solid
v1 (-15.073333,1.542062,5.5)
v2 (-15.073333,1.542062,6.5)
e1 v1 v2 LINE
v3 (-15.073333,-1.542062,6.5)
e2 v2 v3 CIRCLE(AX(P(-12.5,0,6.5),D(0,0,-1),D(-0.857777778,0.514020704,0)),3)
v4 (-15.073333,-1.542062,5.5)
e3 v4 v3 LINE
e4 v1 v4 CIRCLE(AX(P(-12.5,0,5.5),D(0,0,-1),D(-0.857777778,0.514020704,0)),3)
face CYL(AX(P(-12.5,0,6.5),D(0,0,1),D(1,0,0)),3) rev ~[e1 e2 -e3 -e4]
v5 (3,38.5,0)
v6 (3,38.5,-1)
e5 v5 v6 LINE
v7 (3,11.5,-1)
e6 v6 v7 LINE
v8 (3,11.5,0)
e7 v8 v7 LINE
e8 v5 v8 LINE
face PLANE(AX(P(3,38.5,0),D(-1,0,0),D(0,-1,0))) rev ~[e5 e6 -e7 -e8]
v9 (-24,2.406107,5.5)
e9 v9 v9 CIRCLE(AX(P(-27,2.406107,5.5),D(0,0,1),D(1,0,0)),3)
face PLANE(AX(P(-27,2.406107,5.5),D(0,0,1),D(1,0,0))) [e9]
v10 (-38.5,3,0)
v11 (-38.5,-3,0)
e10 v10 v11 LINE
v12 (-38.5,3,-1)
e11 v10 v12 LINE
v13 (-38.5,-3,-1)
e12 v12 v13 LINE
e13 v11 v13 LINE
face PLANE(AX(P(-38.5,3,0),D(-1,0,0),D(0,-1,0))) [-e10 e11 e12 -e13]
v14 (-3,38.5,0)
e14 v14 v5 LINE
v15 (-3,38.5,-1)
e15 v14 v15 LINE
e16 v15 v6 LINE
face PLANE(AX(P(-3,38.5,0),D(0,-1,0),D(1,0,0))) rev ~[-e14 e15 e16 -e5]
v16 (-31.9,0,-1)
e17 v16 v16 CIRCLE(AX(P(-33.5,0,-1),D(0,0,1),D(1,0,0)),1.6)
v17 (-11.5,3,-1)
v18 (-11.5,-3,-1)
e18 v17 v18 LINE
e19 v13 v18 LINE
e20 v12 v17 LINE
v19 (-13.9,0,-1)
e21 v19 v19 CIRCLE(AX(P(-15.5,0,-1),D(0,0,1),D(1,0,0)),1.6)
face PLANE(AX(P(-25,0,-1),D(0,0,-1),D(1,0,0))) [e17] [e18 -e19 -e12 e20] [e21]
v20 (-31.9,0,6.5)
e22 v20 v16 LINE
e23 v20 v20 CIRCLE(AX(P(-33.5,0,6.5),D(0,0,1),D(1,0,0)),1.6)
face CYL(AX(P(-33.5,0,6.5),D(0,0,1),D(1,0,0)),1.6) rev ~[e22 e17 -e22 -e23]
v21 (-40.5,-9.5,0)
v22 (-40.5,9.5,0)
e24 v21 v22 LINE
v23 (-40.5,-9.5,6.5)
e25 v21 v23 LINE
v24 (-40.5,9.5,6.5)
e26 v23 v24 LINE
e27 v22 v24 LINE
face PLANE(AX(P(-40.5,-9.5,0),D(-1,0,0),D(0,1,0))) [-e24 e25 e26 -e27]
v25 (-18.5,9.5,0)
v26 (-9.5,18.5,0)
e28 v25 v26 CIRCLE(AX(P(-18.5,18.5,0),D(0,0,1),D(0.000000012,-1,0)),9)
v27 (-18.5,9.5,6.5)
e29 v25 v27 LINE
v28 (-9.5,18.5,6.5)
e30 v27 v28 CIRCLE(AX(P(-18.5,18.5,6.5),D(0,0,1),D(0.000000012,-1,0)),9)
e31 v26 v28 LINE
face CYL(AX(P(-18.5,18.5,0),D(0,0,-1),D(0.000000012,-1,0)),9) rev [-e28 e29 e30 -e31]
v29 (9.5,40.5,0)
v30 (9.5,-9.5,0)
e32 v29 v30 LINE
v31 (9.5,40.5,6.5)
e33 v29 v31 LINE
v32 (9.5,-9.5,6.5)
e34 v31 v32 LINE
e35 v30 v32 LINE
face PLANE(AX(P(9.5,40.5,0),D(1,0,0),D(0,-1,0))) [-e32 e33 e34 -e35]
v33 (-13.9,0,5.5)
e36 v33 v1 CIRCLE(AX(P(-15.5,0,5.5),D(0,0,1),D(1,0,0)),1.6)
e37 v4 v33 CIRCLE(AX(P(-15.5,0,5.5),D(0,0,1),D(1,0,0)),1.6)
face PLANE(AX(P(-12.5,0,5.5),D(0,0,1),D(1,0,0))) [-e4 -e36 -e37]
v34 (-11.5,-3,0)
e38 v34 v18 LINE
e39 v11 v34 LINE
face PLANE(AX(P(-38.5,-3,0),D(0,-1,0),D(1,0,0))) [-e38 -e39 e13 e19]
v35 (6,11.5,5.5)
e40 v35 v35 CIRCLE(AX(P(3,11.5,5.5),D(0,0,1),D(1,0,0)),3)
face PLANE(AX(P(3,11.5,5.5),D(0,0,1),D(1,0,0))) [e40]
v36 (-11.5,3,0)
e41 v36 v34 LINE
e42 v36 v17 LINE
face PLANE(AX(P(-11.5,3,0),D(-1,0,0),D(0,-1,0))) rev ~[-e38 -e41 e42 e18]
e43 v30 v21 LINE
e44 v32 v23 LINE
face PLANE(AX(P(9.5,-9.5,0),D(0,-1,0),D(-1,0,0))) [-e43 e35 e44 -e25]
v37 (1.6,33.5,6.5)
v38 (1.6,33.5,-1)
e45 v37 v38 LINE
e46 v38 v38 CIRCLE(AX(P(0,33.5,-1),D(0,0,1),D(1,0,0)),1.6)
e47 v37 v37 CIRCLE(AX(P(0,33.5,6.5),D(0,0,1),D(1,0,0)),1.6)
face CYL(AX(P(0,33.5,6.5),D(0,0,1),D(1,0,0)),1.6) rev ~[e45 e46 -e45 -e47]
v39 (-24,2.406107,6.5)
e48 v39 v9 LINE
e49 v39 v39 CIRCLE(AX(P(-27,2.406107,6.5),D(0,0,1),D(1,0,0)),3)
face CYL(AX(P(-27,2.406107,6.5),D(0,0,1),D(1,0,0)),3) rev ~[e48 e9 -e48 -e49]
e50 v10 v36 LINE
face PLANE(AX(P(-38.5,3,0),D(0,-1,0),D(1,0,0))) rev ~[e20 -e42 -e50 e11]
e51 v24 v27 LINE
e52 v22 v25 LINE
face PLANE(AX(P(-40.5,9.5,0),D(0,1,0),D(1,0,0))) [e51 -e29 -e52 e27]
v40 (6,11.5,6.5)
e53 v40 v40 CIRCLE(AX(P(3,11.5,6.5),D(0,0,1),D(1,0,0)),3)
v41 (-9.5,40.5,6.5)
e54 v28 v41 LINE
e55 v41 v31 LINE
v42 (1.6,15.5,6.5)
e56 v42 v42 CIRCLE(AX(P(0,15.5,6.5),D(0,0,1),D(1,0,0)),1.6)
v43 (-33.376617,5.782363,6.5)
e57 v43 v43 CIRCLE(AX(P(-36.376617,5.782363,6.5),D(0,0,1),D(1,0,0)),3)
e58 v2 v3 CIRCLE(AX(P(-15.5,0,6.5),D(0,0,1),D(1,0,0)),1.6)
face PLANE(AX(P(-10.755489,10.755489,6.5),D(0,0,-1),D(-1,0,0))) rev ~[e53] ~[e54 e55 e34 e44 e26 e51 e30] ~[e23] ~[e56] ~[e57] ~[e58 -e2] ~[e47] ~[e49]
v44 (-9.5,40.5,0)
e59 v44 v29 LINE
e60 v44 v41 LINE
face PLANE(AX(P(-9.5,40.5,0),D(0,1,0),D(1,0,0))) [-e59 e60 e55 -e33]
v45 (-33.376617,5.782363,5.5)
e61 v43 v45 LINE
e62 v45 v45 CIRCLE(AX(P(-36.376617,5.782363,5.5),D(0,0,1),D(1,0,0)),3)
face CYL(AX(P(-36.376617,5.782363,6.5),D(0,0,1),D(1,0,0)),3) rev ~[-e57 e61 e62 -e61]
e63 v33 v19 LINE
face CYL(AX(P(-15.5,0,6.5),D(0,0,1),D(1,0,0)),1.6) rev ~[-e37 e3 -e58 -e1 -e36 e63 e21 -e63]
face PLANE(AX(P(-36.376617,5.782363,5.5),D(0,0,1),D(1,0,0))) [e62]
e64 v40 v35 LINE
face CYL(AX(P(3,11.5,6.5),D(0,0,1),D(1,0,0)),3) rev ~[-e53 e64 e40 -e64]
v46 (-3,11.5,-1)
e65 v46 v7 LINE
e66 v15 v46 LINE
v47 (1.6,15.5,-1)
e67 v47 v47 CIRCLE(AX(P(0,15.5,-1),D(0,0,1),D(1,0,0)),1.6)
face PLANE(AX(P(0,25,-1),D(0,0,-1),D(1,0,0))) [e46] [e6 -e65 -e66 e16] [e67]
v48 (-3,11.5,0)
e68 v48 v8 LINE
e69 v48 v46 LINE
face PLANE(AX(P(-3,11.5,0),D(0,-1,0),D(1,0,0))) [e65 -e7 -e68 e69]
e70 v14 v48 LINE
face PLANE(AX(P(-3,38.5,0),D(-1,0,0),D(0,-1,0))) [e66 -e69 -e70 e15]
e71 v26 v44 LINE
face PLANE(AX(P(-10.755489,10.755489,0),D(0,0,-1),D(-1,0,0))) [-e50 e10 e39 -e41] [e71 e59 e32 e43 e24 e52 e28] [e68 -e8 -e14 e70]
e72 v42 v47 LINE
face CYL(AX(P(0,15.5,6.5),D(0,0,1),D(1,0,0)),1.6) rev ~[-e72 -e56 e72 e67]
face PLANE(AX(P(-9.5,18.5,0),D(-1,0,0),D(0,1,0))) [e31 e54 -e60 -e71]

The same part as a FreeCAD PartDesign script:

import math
import FreeCAD as App
import Part
import Sketcher
from FreeCAD import Vector
Q = App.Units.Quantity

doc = App.newDocument("Part")
params = doc.addObject("Spreadsheet::Sheet", "Params")
for row, (alias, value) in enumerate([
    ("sketch1_radius", "9 mm"),
    ("sketch1_width", "19 mm"),
    ("sketch1_width2", "22 mm"),
    ("pad1_length", "6.5 mm"),
    ("sketch2_width", "27 mm"),
    ("sketch2_width2", "6 mm"),
    ("pad2_length", "1 mm"),
    ("sketch3_diameter", "3.2 mm"),
    ("sketch4_diameter", "6 mm"),
    ("pocket2_length", "1 mm"),
], start=1):
    params.set(f"A{row}", alias)
    params.set(f"B{row}", "=" + value)
    params.setAlias(f"B{row}", alias)

body = doc.addObject("PartDesign::Body", "Body")

sketch1 = doc.addObject("Sketcher::SketchObject", "Sketch")
body.addObject(sketch1)
sketch1.AttachmentSupport = (doc.XY_Plane, [""])
sketch1.MapMode = "FlatFace"
sketch1.addGeometry([
    Part.LineSegment(Vector(10, 40, 0), Vector(-10, 40, 0)),
    Part.LineSegment(Vector(-10, 40, 0), Vector(-10, 18, 0)),
    Part.ArcOfCircle(Part.Circle(Vector(-19, 19, 0), Vector(0, 0, 1), 9), math.radians(-90), math.radians(0)),
    Part.LineSegment(Vector(-18, 10, 0), Vector(-40, 10, 0)),
    Part.LineSegment(Vector(-40, 10, 0), Vector(-40, -10, 0)),
    Part.LineSegment(Vector(-40, -10, 0), Vector(10, -10, 0)),
    Part.LineSegment(Vector(10, -10, 0), Vector(10, 40, 0)),
], False)
sketch1.addConstraint([
    Sketcher.Constraint("Coincident", 0, 2, 1, 1),
    Sketcher.Constraint("Tangent", 1, 2, 2, 2),
    Sketcher.Constraint("Tangent", 2, 1, 3, 1),
    Sketcher.Constraint("Coincident", 3, 2, 4, 1),
    Sketcher.Constraint("Coincident", 4, 2, 5, 1),
    Sketcher.Constraint("Coincident", 5, 2, 6, 1),
    Sketcher.Constraint("Coincident", 6, 2, 0, 1),
    Sketcher.Constraint("Horizontal", 0),
    Sketcher.Constraint("Vertical", 1),
    Sketcher.Constraint("Horizontal", 3),
    Sketcher.Constraint("Vertical", 4),
    Sketcher.Constraint("Horizontal", 5),
    Sketcher.Constraint("Vertical", 6),
    Sketcher.Constraint("Equal", 3, 1),
    Sketcher.Constraint("Equal", 0, 4),
    Sketcher.Constraint("Radius", 2, Q("9 mm")),
    Sketcher.Constraint("DistanceX", 0, 2, 0, 1, Q("19 mm")),
    Sketcher.Constraint("DistanceX", 3, 2, 3, 1, Q("22 mm")),
    Sketcher.Constraint("DistanceX", 2, 3, -1, 1, Q("18.5 mm")),
    Sketcher.Constraint("DistanceY", -1, 1, 2, 3, Q("18.5 mm")),
])
sketch1.setExpression("Constraints[15]", "Params.sketch1_radius")
sketch1.setExpression("Constraints[16]", "Params.sketch1_width")
sketch1.setExpression("Constraints[17]", "Params.sketch1_width2")
pad1 = doc.addObject("PartDesign::Pad", "Pad")
body.addObject(pad1)
pad1.Profile = sketch1
pad1.setExpression("Length", "Params.pad1_length")

sketch2 = doc.addObject("Sketcher::SketchObject", "Sketch001")
body.addObject(sketch2)
sketch2.AttachmentSupport = (doc.XY_Plane, [""])
sketch2.MapMode = "FlatFace"
sketch2.addGeometry([
    Part.LineSegment(Vector(-38, -3, 0), Vector(-38, 3, 0)),
    Part.LineSegment(Vector(-38, 3, 0), Vector(-12, 3, 0)),
    Part.LineSegment(Vector(-12, 3, 0), Vector(-12, -3, 0)),
    Part.LineSegment(Vector(-12, -3, 0), Vector(-38, -3, 0)),
    Part.LineSegment(Vector(-3, 12, 0), Vector(-3, 38, 0)),
    Part.LineSegment(Vector(-3, 38, 0), Vector(3, 38, 0)),
    Part.LineSegment(Vector(3, 38, 0), Vector(3, 12, 0)),
    Part.LineSegment(Vector(3, 12, 0), Vector(-3, 12, 0)),
], False)
sketch2.addConstraint([
    Sketcher.Constraint("Coincident", 0, 2, 1, 1),
    Sketcher.Constraint("Coincident", 1, 2, 2, 1),
    Sketcher.Constraint("Coincident", 2, 2, 3, 1),
    Sketcher.Constraint("Coincident", 3, 2, 0, 1),
    Sketcher.Constraint("Coincident", 4, 2, 5, 1),
    Sketcher.Constraint("Coincident", 5, 2, 6, 1),
    Sketcher.Constraint("Coincident", 6, 2, 7, 1),
    Sketcher.Constraint("Coincident", 7, 2, 4, 1),
    Sketcher.Constraint("Vertical", 0),
    Sketcher.Constraint("Horizontal", 1),
    Sketcher.Constraint("Vertical", 2),
    Sketcher.Constraint("Horizontal", 3),
    Sketcher.Constraint("Vertical", 4),
    Sketcher.Constraint("Horizontal", 5),
    Sketcher.Constraint("Vertical", 6),
    Sketcher.Constraint("Horizontal", 7),
    Sketcher.Constraint("Equal", 7, 0),
    Sketcher.Constraint("Equal", 3, 4),
    Sketcher.Constraint("DistanceX", 1, 1, 1, 2, Q("27 mm")),
    Sketcher.Constraint("DistanceX", 5, 1, 5, 2, Q("6 mm")),
    Sketcher.Constraint("DistanceY", -1, 1, 0, 2, Q("3 mm")),
    Sketcher.Constraint("DistanceX", 4, 2, -1, 1, Q("3 mm")),
    Sketcher.Constraint("DistanceX", 0, 2, -1, 1, Q("38.5 mm")),
    Sketcher.Constraint("DistanceY", -1, 1, 4, 2, Q("38.5 mm")),
])
sketch2.setExpression("Constraints[18]", "Params.sketch2_width")
sketch2.setExpression("Constraints[19]", "Params.sketch2_width2")
pad2 = doc.addObject("PartDesign::Pad", "Pad001")
body.addObject(pad2)
pad2.Profile = sketch2
pad2.setExpression("Length", "Params.pad2_length")
pad2.Reversed = True

sketch3 = doc.addObject("Sketcher::SketchObject", "Sketch002")
body.addObject(sketch3)
sketch3.AttachmentSupport = (doc.XY_Plane, [""])
sketch3.MapMode = "FlatFace"
sketch3.AttachmentOffset = App.Placement(Vector(0, 0, 6.5), App.Rotation())
sketch3.addGeometry([
    Part.Circle(Vector(-33.5, 0, 0), Vector(0, 0, 1), 1.6),
    Part.Circle(Vector(-15.5, 0, 0), Vector(0, 0, 1), 1.6),
    Part.Circle(Vector(0, 15.5, 0), Vector(0, 0, 1), 1.6),
    Part.Circle(Vector(0, 33.5, 0), Vector(0, 0, 1), 1.6),
], False)
sketch3.addConstraint([
    Sketcher.Constraint("Equal", 0, 1),
    Sketcher.Constraint("Equal", 1, 2),
    Sketcher.Constraint("Equal", 2, 3),
    Sketcher.Constraint("PointOnObject", 0, 3, -1),
    Sketcher.Constraint("PointOnObject", 1, 3, -1),
    Sketcher.Constraint("PointOnObject", 2, 3, -2),
    Sketcher.Constraint("PointOnObject", 3, 3, -2),
    Sketcher.Constraint("Diameter", 0, Q("3.2 mm")),
    Sketcher.Constraint("DistanceX", 0, 3, 1, 3, Q("18 mm")),
    Sketcher.Constraint("DistanceY", 2, 3, 3, 3, Q("18 mm")),
    Sketcher.Constraint("DistanceX", 0, 3, -1, 1, Q("33.5 mm")),
    Sketcher.Constraint("DistanceY", -1, 1, 2, 3, Q("15.5 mm")),
])
sketch3.setExpression("Constraints[7]", "Params.sketch3_diameter")
pocket1 = doc.addObject("PartDesign::Pocket", "Pocket")
body.addObject(pocket1)
pocket1.Profile = sketch3
pocket1.Type = "ThroughAll"

sketch4 = doc.addObject("Sketcher::SketchObject", "Sketch003")
body.addObject(sketch4)
sketch4.AttachmentSupport = (doc.XY_Plane, [""])
sketch4.MapMode = "FlatFace"
sketch4.AttachmentOffset = App.Placement(Vector(0, 0, 6.5), App.Rotation())
sketch4.addGeometry([
    Part.Circle(Vector(3, 11.5, 0), Vector(0, 0, 1), 3),
    Part.Circle(Vector(-12.5, 0, 0), Vector(0, 0, 1), 3),
    Part.Circle(Vector(-36.4, 5.8, 0), Vector(0, 0, 1), 3),
    Part.Circle(Vector(-27, 2.4, 0), Vector(0, 0, 1), 3),
], False)
sketch4.addConstraint([
    Sketcher.Constraint("Equal", 0, 1),
    Sketcher.Constraint("Equal", 1, 2),
    Sketcher.Constraint("Equal", 2, 3),
    Sketcher.Constraint("PointOnObject", 1, 3, -1),
    Sketcher.Constraint("Diameter", 0, Q("6 mm")),
    Sketcher.Constraint("DistanceX", -1, 1, 0, 3, Q("3 mm")),
    Sketcher.Constraint("DistanceX", 3, 3, -1, 1, Q("27 mm")),
    Sketcher.Constraint("DistanceY", -1, 1, 0, 3, Q("11.5 mm")),
    Sketcher.Constraint("DistanceX", 1, 3, -1, 1, Q("12.5 mm")),
    Sketcher.Constraint("DistanceX", 2, 3, -1, 1, Q("36.376617 mm")),
    Sketcher.Constraint("DistanceY", -1, 1, 2, 3, Q("5.782363 mm")),
    Sketcher.Constraint("DistanceY", -1, 1, 3, 3, Q("2.406107 mm")),
])
sketch4.setExpression("Constraints[4]", "Params.sketch4_diameter")
pocket2 = doc.addObject("PartDesign::Pocket", "Pocket001")
body.addObject(pocket2)
pocket2.Profile = sketch4
pocket2.setExpression("Length", "Params.pocket2_length")

doc.recompute()
